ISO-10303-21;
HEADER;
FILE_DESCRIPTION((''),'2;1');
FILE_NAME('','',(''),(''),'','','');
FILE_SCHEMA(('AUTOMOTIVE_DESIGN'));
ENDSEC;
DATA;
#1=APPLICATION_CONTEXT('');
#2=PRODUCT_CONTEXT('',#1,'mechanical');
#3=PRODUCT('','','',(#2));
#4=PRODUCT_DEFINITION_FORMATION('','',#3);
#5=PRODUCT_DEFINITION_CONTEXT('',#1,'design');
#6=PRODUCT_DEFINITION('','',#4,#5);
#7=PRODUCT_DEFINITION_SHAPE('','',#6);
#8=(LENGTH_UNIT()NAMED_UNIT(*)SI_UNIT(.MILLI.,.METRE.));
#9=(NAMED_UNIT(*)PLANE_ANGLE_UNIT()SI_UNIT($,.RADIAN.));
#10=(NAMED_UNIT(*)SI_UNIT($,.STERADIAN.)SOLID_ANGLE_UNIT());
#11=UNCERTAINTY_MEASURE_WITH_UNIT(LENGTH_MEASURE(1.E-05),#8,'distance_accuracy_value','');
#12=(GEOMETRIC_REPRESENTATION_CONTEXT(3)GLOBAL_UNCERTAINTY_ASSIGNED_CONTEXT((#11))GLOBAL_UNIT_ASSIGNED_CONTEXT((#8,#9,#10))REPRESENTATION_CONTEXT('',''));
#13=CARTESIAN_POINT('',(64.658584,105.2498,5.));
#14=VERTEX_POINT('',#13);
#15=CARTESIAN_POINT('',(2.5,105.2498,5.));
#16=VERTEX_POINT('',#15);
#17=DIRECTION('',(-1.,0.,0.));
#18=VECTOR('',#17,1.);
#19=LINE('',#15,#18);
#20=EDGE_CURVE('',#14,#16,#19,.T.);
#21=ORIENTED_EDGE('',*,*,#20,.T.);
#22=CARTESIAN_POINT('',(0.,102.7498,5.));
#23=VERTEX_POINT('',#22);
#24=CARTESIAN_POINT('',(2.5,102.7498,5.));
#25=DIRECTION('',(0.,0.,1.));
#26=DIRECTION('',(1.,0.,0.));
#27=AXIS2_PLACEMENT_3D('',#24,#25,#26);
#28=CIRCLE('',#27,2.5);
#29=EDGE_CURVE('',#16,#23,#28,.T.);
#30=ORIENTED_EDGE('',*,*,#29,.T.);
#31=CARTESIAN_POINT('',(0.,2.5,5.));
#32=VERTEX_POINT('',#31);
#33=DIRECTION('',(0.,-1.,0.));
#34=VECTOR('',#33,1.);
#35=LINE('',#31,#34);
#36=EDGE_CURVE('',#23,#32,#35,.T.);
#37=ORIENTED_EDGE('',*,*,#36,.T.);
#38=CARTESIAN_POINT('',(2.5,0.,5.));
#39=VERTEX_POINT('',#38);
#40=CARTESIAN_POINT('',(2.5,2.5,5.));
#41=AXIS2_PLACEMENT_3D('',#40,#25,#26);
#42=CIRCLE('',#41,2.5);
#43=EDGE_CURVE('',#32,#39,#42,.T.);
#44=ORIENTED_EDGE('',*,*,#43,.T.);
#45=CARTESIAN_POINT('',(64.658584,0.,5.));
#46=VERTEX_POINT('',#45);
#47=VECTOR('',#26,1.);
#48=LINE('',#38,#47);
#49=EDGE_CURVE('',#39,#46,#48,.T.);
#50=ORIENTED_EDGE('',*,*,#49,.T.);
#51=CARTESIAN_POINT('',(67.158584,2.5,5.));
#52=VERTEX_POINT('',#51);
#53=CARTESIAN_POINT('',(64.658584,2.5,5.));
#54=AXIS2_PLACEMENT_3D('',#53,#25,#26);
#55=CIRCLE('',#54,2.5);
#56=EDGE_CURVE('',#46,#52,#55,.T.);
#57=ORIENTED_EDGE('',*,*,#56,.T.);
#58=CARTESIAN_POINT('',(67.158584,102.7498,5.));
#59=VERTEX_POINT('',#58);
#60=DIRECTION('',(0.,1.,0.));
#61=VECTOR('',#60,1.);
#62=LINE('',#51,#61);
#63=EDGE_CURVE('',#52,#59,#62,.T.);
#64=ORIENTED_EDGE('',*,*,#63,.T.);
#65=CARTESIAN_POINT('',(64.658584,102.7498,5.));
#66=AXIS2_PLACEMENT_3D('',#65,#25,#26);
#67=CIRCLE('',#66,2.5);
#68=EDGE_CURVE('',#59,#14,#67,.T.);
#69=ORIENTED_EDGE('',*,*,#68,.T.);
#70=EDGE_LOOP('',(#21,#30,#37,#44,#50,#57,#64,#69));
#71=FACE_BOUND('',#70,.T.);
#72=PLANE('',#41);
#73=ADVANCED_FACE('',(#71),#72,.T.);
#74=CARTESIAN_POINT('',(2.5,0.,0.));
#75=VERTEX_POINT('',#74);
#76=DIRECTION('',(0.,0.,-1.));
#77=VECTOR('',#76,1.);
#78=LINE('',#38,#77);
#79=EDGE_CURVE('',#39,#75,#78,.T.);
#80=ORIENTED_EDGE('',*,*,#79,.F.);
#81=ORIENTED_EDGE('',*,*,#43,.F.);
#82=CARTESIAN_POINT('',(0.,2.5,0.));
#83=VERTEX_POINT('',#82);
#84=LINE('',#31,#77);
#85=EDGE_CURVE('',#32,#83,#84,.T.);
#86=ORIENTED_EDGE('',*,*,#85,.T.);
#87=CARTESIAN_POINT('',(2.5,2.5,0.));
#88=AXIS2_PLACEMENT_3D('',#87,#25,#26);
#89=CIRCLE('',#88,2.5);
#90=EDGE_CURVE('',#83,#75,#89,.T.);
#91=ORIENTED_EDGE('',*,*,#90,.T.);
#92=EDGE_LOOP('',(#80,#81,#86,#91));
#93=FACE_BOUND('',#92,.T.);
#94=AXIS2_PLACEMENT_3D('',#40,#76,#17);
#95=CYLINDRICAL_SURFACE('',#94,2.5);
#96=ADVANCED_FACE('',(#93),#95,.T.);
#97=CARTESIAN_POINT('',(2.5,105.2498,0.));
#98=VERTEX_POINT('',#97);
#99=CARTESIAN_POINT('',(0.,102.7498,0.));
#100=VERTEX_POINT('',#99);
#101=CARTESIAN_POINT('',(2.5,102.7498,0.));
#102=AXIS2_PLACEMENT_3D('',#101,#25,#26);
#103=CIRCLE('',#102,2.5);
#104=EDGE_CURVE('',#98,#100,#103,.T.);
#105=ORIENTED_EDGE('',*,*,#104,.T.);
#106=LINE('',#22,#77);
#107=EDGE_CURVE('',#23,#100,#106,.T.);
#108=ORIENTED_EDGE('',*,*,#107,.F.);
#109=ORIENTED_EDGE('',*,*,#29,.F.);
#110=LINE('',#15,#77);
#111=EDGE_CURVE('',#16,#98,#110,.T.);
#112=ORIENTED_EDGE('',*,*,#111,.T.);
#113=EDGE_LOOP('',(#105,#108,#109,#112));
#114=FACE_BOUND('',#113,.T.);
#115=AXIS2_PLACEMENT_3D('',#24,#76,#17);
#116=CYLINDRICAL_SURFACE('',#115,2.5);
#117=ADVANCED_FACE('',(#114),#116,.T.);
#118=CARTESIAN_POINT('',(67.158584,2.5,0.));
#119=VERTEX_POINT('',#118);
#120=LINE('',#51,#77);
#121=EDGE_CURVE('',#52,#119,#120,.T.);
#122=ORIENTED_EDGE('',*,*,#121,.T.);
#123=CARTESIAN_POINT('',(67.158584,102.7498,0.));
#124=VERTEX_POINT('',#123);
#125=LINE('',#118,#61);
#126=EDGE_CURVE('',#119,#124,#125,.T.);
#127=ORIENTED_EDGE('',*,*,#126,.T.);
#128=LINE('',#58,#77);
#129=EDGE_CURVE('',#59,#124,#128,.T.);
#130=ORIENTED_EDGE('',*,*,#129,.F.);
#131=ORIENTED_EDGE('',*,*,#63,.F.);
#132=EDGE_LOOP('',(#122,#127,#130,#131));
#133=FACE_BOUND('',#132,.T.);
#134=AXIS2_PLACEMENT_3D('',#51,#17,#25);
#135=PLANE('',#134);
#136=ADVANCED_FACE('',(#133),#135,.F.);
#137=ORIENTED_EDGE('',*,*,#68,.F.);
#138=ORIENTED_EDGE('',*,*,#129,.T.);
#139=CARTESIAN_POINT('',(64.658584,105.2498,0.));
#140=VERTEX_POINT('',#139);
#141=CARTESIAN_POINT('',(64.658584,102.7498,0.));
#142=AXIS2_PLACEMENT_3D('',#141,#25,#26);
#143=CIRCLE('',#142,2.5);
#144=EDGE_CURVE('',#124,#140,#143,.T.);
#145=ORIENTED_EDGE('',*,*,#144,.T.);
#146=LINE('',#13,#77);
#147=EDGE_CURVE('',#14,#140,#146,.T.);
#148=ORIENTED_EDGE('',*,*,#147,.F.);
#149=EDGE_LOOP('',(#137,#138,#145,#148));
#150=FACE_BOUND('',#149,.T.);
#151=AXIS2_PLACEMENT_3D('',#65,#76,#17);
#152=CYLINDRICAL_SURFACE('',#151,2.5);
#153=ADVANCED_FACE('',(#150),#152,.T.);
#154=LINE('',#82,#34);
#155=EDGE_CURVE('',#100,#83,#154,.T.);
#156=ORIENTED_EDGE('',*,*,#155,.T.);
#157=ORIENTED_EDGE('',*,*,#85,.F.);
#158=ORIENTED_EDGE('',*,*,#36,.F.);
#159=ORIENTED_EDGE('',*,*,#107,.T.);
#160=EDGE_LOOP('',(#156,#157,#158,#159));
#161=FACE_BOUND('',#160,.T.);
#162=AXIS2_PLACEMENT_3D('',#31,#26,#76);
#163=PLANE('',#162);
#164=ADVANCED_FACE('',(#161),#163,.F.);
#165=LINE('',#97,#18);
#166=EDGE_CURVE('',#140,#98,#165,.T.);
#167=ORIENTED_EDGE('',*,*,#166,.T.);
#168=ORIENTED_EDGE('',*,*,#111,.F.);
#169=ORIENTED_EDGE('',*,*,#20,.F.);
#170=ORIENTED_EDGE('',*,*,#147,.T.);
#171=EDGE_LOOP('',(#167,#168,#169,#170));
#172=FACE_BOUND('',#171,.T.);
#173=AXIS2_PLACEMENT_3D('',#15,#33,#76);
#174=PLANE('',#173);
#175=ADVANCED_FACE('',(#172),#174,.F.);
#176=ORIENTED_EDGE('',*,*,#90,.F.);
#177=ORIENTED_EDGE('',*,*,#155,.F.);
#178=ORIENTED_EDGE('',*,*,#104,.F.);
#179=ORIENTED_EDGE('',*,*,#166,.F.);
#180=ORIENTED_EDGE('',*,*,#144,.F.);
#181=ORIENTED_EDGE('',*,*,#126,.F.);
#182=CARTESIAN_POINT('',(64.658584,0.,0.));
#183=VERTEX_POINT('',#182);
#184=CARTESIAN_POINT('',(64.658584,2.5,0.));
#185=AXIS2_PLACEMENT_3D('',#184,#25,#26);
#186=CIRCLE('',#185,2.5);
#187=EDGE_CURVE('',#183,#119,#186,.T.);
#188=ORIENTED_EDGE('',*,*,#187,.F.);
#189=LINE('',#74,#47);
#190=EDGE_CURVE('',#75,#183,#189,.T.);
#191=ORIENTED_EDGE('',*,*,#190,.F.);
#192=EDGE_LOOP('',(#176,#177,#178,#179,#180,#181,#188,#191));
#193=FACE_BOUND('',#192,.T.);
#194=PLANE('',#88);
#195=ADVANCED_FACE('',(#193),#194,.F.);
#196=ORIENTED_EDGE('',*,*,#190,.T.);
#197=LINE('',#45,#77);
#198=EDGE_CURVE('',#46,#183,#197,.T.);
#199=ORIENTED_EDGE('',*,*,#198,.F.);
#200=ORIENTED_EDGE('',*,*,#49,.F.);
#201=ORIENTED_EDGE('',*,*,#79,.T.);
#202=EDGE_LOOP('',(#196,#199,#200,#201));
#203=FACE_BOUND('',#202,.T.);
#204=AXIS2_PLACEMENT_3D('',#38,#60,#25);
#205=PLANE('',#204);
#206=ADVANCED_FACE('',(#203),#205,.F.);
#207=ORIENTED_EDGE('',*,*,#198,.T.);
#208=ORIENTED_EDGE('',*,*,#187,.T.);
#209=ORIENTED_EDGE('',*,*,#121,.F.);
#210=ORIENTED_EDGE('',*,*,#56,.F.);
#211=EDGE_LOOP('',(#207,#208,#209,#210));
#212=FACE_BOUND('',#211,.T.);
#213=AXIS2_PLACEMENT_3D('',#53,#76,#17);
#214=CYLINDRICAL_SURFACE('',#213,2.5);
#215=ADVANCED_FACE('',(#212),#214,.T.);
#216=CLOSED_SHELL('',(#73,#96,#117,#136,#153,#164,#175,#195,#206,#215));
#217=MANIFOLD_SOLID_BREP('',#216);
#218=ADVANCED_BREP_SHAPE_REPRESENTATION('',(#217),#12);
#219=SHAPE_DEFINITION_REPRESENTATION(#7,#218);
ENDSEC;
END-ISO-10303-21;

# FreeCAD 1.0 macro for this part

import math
import FreeCAD as App
import Part
import Sketcher

V = App.Vector

doc = App.newDocument("Part")
body = doc.addObject("PartDesign::Body", "Body")

# Sketch on XY plane
sketch1 = doc.addObject("Sketcher::SketchObject", "Sketch")
body.addObject(sketch1)
sketch1.AttachmentSupport = (doc.XY_Plane, [""])
sketch1.MapMode = "FlatFace"
sketch1.addGeometry(Part.LineSegment(V(2.5, 0, 0), V(64.7, 0, 0)), False)
sketch1.addGeometry(Part.ArcOfCircle(Part.Circle(V(64.7, 2.5, 0), V(0, 0, 1), 2.5), math.radians(-90), math.radians(0)), False)
sketch1.addGeometry(Part.LineSegment(V(67.2, 2.5, 0), V(67.2, 102.7, 0)), False)
sketch1.addGeometry(Part.ArcOfCircle(Part.Circle(V(64.7, 102.7, 0), V(0, 0, 1), 2.5), math.radians(0), math.radians(90)), False)
sketch1.addGeometry(Part.LineSegment(V(64.7, 105.2, 0), V(2.5, 105.2, 0)), False)
sketch1.addGeometry(Part.ArcOfCircle(Part.Circle(V(2.5, 102.7, 0), V(0, 0, 1), 2.5), math.radians(90), math.radians(180)), False)
sketch1.addGeometry(Part.LineSegment(V(0, 102.7, 0), V(0, 2.5, 0)), False)
sketch1.addGeometry(Part.ArcOfCircle(Part.Circle(V(2.5, 2.5, 0), V(0, 0, 1), 2.5), math.radians(180), math.radians(270)), False)
sketch1.addConstraint(Sketcher.Constraint("Tangent", 0, 2, 1, 1))
sketch1.addConstraint(Sketcher.Constraint("Tangent", 1, 2, 2, 1))
sketch1.addConstraint(Sketcher.Constraint("Tangent", 2, 2, 3, 1))
sketch1.addConstraint(Sketcher.Constraint("Tangent", 3, 2, 4, 1))
sketch1.addConstraint(Sketcher.Constraint("Tangent", 4, 2, 5, 1))
sketch1.addConstraint(Sketcher.Constraint("Tangent", 5, 2, 6, 1))
sketch1.addConstraint(Sketcher.Constraint("Tangent", 6, 2, 7, 1))
sketch1.addConstraint(Sketcher.Constraint("Tangent", 7, 2, 0, 1))
sketch1.addConstraint(Sketcher.Constraint("Horizontal", 0))
sketch1.addConstraint(Sketcher.Constraint("Vertical", 2))
sketch1.addConstraint(Sketcher.Constraint("Horizontal", 4))
sketch1.addConstraint(Sketcher.Constraint("Vertical", 6))
sketch1.addConstraint(Sketcher.Constraint("Equal", 1, 3))
sketch1.addConstraint(Sketcher.Constraint("Equal", 3, 5))
sketch1.addConstraint(Sketcher.Constraint("Equal", 5, 7))
sketch1.addConstraint(Sketcher.Constraint("PointOnObject", 0, 2, -1))
sketch1.addConstraint(Sketcher.Constraint("PointOnObject", 5, 2, -2))
sketch1.addConstraint(Sketcher.Constraint("Radius", 1, 2.5))
sketch1.addConstraint(Sketcher.Constraint("DistanceY", 2, 1, 2, 2, 100.2498))
sketch1.addConstraint(Sketcher.Constraint("DistanceX", 0, 1, 0, 2, 62.158584))
pad1 = doc.addObject("PartDesign::Pad", "Pad")
body.addObject(pad1)
pad1.Profile = sketch1
pad1.Length = 5

doc.recompute()
